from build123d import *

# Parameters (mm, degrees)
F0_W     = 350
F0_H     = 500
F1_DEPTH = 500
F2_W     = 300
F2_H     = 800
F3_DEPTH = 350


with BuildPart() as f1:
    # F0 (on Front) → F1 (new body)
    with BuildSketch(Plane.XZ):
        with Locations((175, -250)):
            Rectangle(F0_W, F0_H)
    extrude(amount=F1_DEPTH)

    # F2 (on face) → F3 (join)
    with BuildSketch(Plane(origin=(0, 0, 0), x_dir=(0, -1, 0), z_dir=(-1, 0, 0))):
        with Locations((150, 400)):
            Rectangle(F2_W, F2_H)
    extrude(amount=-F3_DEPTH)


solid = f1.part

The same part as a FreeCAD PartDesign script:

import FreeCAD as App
import Part
import Sketcher
from FreeCAD import Vector
Q = App.Units.Quantity


def add_polygon(sketch, points):
    """Adds a closed chain of lines whose ends are joined by coincident constraints."""
    first, n = sketch.GeometryCount, len(points)
    for a, b in zip(points, points[1:] + points[:1]):
        sketch.addGeometry(Part.LineSegment(App.Vector(*a, 0), App.Vector(*b, 0)), False)
    for i in range(n):
        sketch.addConstraint(Sketcher.Constraint("Coincident", first + i, 2, first + (i + 1) % n, 1))

doc = App.newDocument("Part")
body = doc.addObject("PartDesign::Body", "Body")

# Sketch on XZ plane
sketch1 = body.newObject("Sketcher::SketchObject", "Sketch")
sketch1.AttachmentSupport = (doc.getObject("XZ_Plane"), [""])
sketch1.MapMode = "FlatFace"
add_polygon(sketch1, [(0, 0), (0, -500), (350, -500), (350, 0)])  # lines 0-3
sketch1.addConstraint([
    Sketcher.Constraint("Vertical", 0),
    Sketcher.Constraint("Horizontal", 1),
    Sketcher.Constraint("Vertical", 2),
    Sketcher.Constraint("Horizontal", 3),
    Sketcher.Constraint("Coincident", 3, 2, -1, 1),
    Sketcher.Constraint("DistanceX", 1, 1, 1, 2, Q("350 mm")),
    Sketcher.Constraint("DistanceY", 0, 2, 0, 1, Q("500 mm")),
])
pad1 = body.newObject("PartDesign::Pad", "Pad")
pad1.Profile = sketch1
pad1.Length = 500

# Sketch on YZ plane
sketch2 = body.newObject("Sketcher::SketchObject", "Sketch001")
sketch2.AttachmentSupport = (doc.getObject("YZ_Plane"), [""])
sketch2.MapMode = "FlatFace"
add_polygon(sketch2, [(0, 800), (0, 0), (-300, 0), (-300, 800)])  # lines 0-3
sketch2.addConstraint([
    Sketcher.Constraint("Vertical", 0),
    Sketcher.Constraint("Horizontal", 1),
    Sketcher.Constraint("Vertical", 2),
    Sketcher.Constraint("Horizontal", 3),
    Sketcher.Constraint("Coincident", 0, 2, -1, 1),
    Sketcher.Constraint("DistanceX", 1, 2, 1, 1, Q("300 mm")),
    Sketcher.Constraint("DistanceY", 0, 2, 0, 1, Q("800 mm")),
])
pad2 = body.newObject("PartDesign::Pad", "Pad001")
pad2.Profile = sketch2
pad2.Length = 350

doc.recompute()
